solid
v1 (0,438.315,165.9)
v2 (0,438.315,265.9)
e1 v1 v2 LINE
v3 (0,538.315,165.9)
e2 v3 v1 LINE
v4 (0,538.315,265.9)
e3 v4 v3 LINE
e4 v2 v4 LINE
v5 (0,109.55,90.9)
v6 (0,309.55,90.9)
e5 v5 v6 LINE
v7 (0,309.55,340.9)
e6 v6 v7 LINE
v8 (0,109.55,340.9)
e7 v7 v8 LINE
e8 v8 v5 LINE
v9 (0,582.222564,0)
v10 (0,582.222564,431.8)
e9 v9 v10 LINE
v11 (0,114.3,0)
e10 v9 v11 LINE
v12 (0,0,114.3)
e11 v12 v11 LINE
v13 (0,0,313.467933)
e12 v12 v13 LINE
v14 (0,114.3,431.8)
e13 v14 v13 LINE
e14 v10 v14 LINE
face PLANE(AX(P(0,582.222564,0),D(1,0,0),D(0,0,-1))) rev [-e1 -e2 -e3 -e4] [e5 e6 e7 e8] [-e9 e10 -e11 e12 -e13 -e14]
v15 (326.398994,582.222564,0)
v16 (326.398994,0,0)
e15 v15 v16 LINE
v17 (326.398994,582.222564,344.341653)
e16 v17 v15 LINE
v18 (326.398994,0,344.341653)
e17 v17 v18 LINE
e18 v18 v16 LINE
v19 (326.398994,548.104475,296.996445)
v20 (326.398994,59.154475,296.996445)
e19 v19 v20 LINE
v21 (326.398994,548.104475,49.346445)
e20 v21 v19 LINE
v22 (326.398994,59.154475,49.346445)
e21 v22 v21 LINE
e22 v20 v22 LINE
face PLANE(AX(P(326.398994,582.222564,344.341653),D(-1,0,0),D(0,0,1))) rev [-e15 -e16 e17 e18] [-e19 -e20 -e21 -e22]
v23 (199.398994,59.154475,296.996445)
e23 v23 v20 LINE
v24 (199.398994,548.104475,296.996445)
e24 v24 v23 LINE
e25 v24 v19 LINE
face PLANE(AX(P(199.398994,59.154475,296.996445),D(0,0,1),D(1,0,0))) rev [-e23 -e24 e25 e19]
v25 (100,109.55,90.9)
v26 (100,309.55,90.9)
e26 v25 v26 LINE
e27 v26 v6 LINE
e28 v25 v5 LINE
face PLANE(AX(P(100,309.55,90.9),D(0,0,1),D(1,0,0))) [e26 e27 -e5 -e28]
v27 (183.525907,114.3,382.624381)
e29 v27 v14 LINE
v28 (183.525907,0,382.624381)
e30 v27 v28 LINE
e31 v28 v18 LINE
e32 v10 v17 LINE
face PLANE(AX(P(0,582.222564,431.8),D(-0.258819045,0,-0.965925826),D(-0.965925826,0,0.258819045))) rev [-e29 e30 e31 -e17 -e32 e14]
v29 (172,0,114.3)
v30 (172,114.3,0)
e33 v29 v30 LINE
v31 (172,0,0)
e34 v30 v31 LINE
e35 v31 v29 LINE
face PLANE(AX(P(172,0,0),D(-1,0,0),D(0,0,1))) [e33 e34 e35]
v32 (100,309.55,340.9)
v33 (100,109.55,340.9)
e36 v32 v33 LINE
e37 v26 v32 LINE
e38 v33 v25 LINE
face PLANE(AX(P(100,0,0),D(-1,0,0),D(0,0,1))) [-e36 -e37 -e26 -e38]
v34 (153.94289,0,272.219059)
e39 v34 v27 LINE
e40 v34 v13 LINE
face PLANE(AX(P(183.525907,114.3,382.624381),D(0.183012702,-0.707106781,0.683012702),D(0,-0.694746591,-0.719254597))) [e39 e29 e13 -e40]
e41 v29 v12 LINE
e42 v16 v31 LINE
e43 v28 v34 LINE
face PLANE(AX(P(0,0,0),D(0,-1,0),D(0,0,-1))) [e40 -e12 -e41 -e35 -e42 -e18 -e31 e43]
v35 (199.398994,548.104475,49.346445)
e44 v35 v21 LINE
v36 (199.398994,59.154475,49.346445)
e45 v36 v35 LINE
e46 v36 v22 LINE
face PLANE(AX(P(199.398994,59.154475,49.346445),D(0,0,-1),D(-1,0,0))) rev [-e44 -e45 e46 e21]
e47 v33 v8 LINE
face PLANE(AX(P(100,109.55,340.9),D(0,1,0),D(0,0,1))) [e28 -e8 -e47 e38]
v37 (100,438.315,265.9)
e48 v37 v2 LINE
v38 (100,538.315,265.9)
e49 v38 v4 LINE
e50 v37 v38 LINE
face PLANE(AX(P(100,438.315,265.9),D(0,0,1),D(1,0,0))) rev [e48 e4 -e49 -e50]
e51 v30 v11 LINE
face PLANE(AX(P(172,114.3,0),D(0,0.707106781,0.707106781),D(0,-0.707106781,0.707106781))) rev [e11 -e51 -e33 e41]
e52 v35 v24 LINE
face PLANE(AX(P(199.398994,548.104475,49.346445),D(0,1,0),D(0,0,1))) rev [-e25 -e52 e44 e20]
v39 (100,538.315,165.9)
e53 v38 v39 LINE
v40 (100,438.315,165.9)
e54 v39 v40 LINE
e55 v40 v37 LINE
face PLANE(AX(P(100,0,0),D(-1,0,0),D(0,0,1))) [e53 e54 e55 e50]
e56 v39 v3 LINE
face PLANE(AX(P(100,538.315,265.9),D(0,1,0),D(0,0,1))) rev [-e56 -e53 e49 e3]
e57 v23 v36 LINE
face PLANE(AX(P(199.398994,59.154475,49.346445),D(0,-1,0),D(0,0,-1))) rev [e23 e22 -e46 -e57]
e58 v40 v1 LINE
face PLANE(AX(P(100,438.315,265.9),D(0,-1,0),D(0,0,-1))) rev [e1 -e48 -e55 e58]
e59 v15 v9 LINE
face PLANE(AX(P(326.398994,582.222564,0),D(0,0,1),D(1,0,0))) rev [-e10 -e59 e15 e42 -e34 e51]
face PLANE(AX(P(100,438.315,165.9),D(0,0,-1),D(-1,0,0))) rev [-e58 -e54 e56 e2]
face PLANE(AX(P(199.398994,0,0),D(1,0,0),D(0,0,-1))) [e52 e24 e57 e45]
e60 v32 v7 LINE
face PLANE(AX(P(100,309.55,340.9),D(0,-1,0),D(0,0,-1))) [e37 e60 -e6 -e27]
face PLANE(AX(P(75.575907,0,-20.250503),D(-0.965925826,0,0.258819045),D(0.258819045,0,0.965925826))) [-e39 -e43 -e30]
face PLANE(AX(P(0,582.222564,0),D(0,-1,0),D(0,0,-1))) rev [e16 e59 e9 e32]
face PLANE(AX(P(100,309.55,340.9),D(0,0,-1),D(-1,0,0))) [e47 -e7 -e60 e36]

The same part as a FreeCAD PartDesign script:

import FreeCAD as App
import Part
import Sketcher

V = App.Vector
Q = App.Units.Quantity


def add_polygon(sketch, points):
    """Adds a closed chain of lines whose ends are joined by coincident constraints."""
    first, n = sketch.GeometryCount, len(points)
    for a, b in zip(points, points[1:] + points[:1]):
        sketch.addGeometry(Part.LineSegment(App.Vector(*a, 0), App.Vector(*b, 0)), False)
    for i in range(n):
        sketch.addConstraint(Sketcher.Constraint("Coincident", first + i, 2, first + (i + 1) % n, 1))

doc = App.newDocument("Part")
params = doc.addObject("Spreadsheet::Sheet", "Params")
for row, (alias, value) in enumerate([
    ("sketch1_height", "431.8 mm"),
    ("pad1_length", "582.222564 mm"),
    ("sketch2_width", "488.95 mm"),
    ("sketch2_height", "247.65 mm"),
    ("pocket1_length", "127 mm"),
    ("sketch3_width", "200 mm"),
    ("sketch3_height", "250 mm"),
    ("pocket2_length", "100 mm"),
    ("sketch4_width", "100 mm"),
    ("pocket3_length", "100 mm"),
    ("sketch5_width", "114.3 mm"),
    ("pocket4_length", "172 mm"),
    ("sketch6_width", "114.3 mm"),
    ("pocket5_length", "190 mm"),
], start=1):
    params.set(f"A{row}", alias)
    params.set(f"B{row}", "=" + value)
    params.setAlias(f"B{row}", alias)

body = doc.addObject("PartDesign::Body", "Body")

# Sketch on XZ plane
sketch1 = body.newObject("Sketcher::SketchObject", "Sketch")
sketch1.AttachmentSupport = (doc.getObject("XZ_Plane"), [""])
sketch1.MapMode = "FlatFace"
add_polygon(sketch1, [(0, 431.8), (326.398994, 344.341653), (326.398994, 0), (0, 0)])  # lines 0-3
sketch1.addConstraint(Sketcher.Constraint("Vertical", 1))
sketch1.addConstraint(Sketcher.Constraint("Horizontal", 2))
sketch1.addConstraint(Sketcher.Constraint("Vertical", 3))
sketch1.addConstraint(Sketcher.Constraint("Coincident", 2, 2, -1, 1))
sketch1.addConstraint(Sketcher.Constraint("Angle", 0, Q("-15 deg")))
sketch1.addConstraint(Sketcher.Constraint("DistanceY", 3, 1, 3, 2, Q("431.8 mm")))
sketch1.addConstraint(Sketcher.Constraint("DistanceX", 2, 2, 2, 1, Q("326.398994 mm")))
sketch1.setExpression("Constraints[9]", "Params.sketch1_height")
pad1 = body.newObject("PartDesign::Pad", "Pad")
pad1.Profile = sketch1
pad1.setExpression("Length", "Params.pad1_length")
pad1.Reversed = True

# Sketch on YZ plane
sketch2 = body.newObject("Sketcher::SketchObject", "Sketch001")
sketch2.AttachmentSupport = (doc.getObject("YZ_Plane"), [""])
sketch2.MapMode = "FlatFace"
sketch2.AttachmentOffset = App.Placement(V(0, 0, 326.398994), App.Rotation())
add_polygon(sketch2, [(548.104475, 296.996445), (59.154475, 296.996445), (59.154475, 49.346445), (548.104475, 49.346445)])  # lines 0-3
sketch2.addConstraint(Sketcher.Constraint("Horizontal", 0))
sketch2.addConstraint(Sketcher.Constraint("Vertical", 1))
sketch2.addConstraint(Sketcher.Constraint("Horizontal", 2))
sketch2.addConstraint(Sketcher.Constraint("Vertical", 3))
sketch2.addConstraint(Sketcher.Constraint("DistanceX", 0, 2, 0, 1, Q("488.95 mm")))
sketch2.addConstraint(Sketcher.Constraint("DistanceY", 1, 2, 1, 1, Q("247.65 mm")))
sketch2.addConstraint(Sketcher.Constraint("DistanceX", -1, 1, 0, 2, Q("59.154475 mm")))
sketch2.addConstraint(Sketcher.Constraint("DistanceY", -1, 1, 0, 2, Q("296.996445 mm")))
sketch2.setExpression("Constraints[8]", "Params.sketch2_width")
sketch2.setExpression("Constraints[9]", "Params.sketch2_height")
pocket1 = body.newObject("PartDesign::Pocket", "Pocket")
pocket1.Profile = sketch2
pocket1.setExpression("Length", "Params.pocket1_length")

# Sketch on YZ plane
sketch3 = body.newObject("Sketcher::SketchObject", "Sketch002")
sketch3.AttachmentSupport = (doc.getObject("YZ_Plane"), [""])
sketch3.MapMode = "FlatFace"
add_polygon(sketch3, [(309.55, 90.9), (309.55, 340.9), (109.55, 340.9), (109.55, 90.9)])  # lines 0-3
sketch3.addConstraint(Sketcher.Constraint("Vertical", 0))
sketch3.addConstraint(Sketcher.Constraint("Horizontal", 1))
sketch3.addConstraint(Sketcher.Constraint("Vertical", 2))
sketch3.addConstraint(Sketcher.Constraint("Horizontal", 3))
sketch3.addConstraint(Sketcher.Constraint("DistanceX", 1, 2, 1, 1, Q("200 mm")))
sketch3.addConstraint(Sketcher.Constraint("DistanceY", 0, 1, 0, 2, Q("250 mm")))
sketch3.addConstraint(Sketcher.Constraint("DistanceY", -1, 1, 0, 2, Q("340.9 mm")))
sketch3.addConstraint(Sketcher.Constraint("DistanceX", -1, 1, 0, 2, Q("309.55 mm")))
sketch3.setExpression("Constraints[8]", "Params.sketch3_width")
sketch3.setExpression("Constraints[9]", "Params.sketch3_height")
pocket2 = body.newObject("PartDesign::Pocket", "Pocket001")
pocket2.Profile = sketch3
pocket2.setExpression("Length", "Params.pocket2_length")
pocket2.Reversed = True

# Sketch on YZ plane
sketch4 = body.newObject("Sketcher::SketchObject", "Sketch003")
sketch4.AttachmentSupport = (doc.getObject("YZ_Plane"), [""])
sketch4.MapMode = "FlatFace"
add_polygon(sketch4, [(538.315, 165.9), (438.315, 165.9), (438.315, 265.9), (538.315, 265.9)])  # lines 0-3
sketch4.addConstraint(Sketcher.Constraint("Horizontal", 0))
sketch4.addConstraint(Sketcher.Constraint("Vertical", 1))
sketch4.addConstraint(Sketcher.Constraint("Horizontal", 2))
sketch4.addConstraint(Sketcher.Constraint("Vertical", 3))
sketch4.addConstraint(Sketcher.Constraint("Equal", 2, 1))
sketch4.addConstraint(Sketcher.Constraint("DistanceX", 0, 2, 0, 1, Q("100 mm")))
sketch4.addConstraint(Sketcher.Constraint("DistanceY", -1, 1, 0, 2, Q("165.9 mm")))
sketch4.addConstraint(Sketcher.Constraint("DistanceX", -1, 1, 0, 2, Q("438.315 mm")))
sketch4.setExpression("Constraints[9]", "Params.sketch4_width")
pocket3 = body.newObject("PartDesign::Pocket", "Pocket002")
pocket3.Profile = sketch4
pocket3.setExpression("Length", "Params.pocket3_length")
pocket3.Reversed = True

# Sketch on YZ plane
sketch5 = body.newObject("Sketcher::SketchObject", "Sketch004")
sketch5.AttachmentSupport = (doc.getObject("YZ_Plane"), [""])
sketch5.MapMode = "FlatFace"
add_polygon(sketch5, [(0, 114.3), (114.3, 0), (0, 0)])  # lines 0-2
sketch5.addConstraint(Sketcher.Constraint("Horizontal", 1))
sketch5.addConstraint(Sketcher.Constraint("Vertical", 2))
sketch5.addConstraint(Sketcher.Constraint("Coincident", 1, 2, -1, 1))
sketch5.addConstraint(Sketcher.Constraint("Equal", 1, 2))
sketch5.addConstraint(Sketcher.Constraint("DistanceX", 1, 2, 1, 1, Q("114.3 mm")))
sketch5.setExpression("Constraints[7]", "Params.sketch5_width")
pocket4 = body.newObject("PartDesign::Pocket", "Pocket003")
pocket4.Profile = sketch5
pocket4.setExpression("Length", "Params.pocket4_length")
pocket4.Reversed = True

# Sketch on an angled plane
sketch6 = body.newObject("Sketcher::SketchObject", "Sketch005")
sketch6.Placement = App.Placement(V(-107.95, 0, 28.925115), App.Rotation(V(0, 1, 0), V(0.258819045, 0, 0.965925826), V(0.965925826, 0, -0.258819045), "ZXY"))
add_polygon(sketch6, [(114.3, 417.086772), (0, 417.086772), (0, 302.786772)])  # lines 0-2
sketch6.addConstraint(Sketcher.Constraint("Horizontal", 0))
sketch6.addConstraint(Sketcher.Constraint("Vertical", 1))
sketch6.addConstraint(Sketcher.Constraint("PointOnObject", 0, 2, -2))
sketch6.addConstraint(Sketcher.Constraint("Equal", 0, 1))
sketch6.addConstraint(Sketcher.Constraint("DistanceX", 0, 2, 0, 1, Q("114.3 mm")))
sketch6.addConstraint(Sketcher.Constraint("DistanceY", -1, 1, 0, 2, Q("417.086772 mm")))
sketch6.setExpression("Constraints[7]", "Params.sketch6_width")
pocket5 = body.newObject("PartDesign::Pocket", "Pocket004")
pocket5.Profile = sketch6
pocket5.setExpression("Length", "Params.pocket5_length")
pocket5.Reversed = True

doc.recompute()
